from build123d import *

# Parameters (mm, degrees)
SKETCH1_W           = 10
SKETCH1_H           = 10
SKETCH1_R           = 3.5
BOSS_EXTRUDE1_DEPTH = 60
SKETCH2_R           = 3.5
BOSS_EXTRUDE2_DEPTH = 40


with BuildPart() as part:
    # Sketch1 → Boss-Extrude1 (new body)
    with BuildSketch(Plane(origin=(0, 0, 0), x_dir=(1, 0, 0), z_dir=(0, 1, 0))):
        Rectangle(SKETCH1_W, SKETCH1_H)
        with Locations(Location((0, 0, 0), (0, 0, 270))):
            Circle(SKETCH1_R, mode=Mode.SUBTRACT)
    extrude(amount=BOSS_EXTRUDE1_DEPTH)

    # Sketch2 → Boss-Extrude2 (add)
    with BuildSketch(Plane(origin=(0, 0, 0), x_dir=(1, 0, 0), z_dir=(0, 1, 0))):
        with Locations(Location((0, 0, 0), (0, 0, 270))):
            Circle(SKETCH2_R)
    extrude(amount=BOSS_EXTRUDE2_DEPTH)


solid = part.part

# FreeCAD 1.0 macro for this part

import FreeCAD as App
import Part
import Sketcher

V = App.Vector
Q = App.Units.Quantity


def add_polygon(sketch, points):
    """Adds a closed chain of lines whose ends are joined by coincident constraints."""
    first, n = sketch.GeometryCount, len(points)
    for a, b in zip(points, points[1:] + points[:1]):
        sketch.addGeometry(Part.LineSegment(App.Vector(*a, 0), App.Vector(*b, 0)), False)
    for i in range(n):
        sketch.addConstraint(Sketcher.Constraint("Coincident", first + i, 2, first + (i + 1) % n, 1))

doc = App.newDocument("Part")
body = doc.addObject("PartDesign::Body", "Body")

# Sketch on XZ plane
sketch1 = doc.addObject("Sketcher::SketchObject", "Sketch")
body.addObject(sketch1)
sketch1.AttachmentSupport = (doc.XZ_Plane, [""])
sketch1.MapMode = "FlatFace"
add_polygon(sketch1, [(-5, -5), (-5, 5), (5, 5), (5, -5)])  # lines 0-3
sketch1.addGeometry(Part.Circle(V(0, 0, 0), V(0, 0, 1), 3.5), False)  # 4
sketch1.addConstraint(Sketcher.Constraint("Vertical", 0))
sketch1.addConstraint(Sketcher.Constraint("Horizontal", 1))
sketch1.addConstraint(Sketcher.Constraint("Vertical", 2))
sketch1.addConstraint(Sketcher.Constraint("Horizontal", 3))
sketch1.addConstraint(Sketcher.Constraint("Coincident", 4, 3, -1, 1))
sketch1.addConstraint(Sketcher.Constraint("Symmetric", 0, 2, 2, 2, -1, 1))
sketch1.addConstraint(Sketcher.Constraint("Equal", 3, 0))
sketch1.addConstraint(Sketcher.Constraint("Diameter", 4, Q("7 mm")))
sketch1.addConstraint(Sketcher.Constraint("DistanceX", 1, 1, 1, 2, Q("10 mm")))
pad1 = doc.addObject("PartDesign::Pad", "Pad")
body.addObject(pad1)
pad1.Profile = sketch1
pad1.Length = 60
pad1.Reversed = True

# Sketch on XZ plane
sketch2 = doc.addObject("Sketcher::SketchObject", "Sketch001")
body.addObject(sketch2)
sketch2.AttachmentSupport = (doc.XZ_Plane, [""])
sketch2.MapMode = "FlatFace"
sketch2.addGeometry(Part.Circle(V(0, 0, 0), V(0, 0, 1), 3.5), False)
sketch2.addConstraint(Sketcher.Constraint("Coincident", 0, 3, -1, 1))
sketch2.addConstraint(Sketcher.Constraint("Diameter", 0, Q("7 mm")))
pad2 = doc.addObject("PartDesign::Pad", "Pad001")
body.addObject(pad2)
pad2.Profile = sketch2
pad2.Length = 40
pad2.Reversed = True

doc.recompute()
